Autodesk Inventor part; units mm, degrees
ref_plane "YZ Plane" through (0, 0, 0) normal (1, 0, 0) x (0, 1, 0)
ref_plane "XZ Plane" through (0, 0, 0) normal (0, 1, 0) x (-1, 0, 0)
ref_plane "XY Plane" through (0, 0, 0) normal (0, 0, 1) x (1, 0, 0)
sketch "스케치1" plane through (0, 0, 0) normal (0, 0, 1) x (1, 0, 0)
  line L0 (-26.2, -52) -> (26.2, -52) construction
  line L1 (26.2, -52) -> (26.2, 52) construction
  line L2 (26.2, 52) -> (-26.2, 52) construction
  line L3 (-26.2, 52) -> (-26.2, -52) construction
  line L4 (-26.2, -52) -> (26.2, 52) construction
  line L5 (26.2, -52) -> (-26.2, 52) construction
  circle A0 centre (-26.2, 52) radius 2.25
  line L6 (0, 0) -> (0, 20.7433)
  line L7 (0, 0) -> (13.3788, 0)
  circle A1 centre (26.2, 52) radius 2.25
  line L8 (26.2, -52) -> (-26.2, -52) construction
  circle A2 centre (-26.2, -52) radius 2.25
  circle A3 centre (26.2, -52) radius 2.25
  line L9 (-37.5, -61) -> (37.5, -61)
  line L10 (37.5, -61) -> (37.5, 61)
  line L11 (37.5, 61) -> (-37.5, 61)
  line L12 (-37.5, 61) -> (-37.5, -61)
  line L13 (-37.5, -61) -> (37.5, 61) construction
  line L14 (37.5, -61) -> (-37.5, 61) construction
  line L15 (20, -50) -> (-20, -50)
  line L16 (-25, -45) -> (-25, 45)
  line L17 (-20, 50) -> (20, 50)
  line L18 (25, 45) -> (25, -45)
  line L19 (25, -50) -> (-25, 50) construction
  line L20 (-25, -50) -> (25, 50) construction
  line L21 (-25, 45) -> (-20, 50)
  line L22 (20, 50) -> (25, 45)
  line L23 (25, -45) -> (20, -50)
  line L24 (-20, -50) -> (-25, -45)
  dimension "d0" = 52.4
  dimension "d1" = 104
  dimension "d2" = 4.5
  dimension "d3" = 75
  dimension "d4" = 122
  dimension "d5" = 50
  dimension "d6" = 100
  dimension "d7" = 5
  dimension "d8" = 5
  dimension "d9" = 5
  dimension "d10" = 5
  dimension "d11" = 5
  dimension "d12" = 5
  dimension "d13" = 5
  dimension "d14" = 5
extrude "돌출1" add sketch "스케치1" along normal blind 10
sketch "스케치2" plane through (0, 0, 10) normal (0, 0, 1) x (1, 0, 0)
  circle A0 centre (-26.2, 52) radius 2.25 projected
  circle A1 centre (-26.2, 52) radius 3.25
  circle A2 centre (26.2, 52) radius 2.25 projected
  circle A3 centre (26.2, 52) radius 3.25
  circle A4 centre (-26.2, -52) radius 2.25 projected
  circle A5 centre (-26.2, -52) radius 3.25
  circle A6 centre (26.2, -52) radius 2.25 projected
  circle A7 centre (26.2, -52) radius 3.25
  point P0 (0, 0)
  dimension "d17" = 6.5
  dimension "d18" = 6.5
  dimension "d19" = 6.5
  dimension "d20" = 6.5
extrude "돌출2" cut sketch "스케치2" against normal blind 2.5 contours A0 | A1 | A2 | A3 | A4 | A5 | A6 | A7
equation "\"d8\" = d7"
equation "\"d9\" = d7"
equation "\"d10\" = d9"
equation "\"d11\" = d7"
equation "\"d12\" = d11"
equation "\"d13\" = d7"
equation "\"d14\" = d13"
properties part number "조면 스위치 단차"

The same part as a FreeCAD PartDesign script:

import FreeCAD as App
import Part
import Sketcher
Q = App.Units.Quantity

doc = App.newDocument("Part")
body = doc.addObject("PartDesign::Body", "Body")

sketch1 = doc.addObject("Sketcher::SketchObject", "Sketch")
body.addObject(sketch1)
sketch1.AttachmentSupport = (doc.XY_Plane, [""])
sketch1.MapMode = "FlatFace"
sketch1.addGeometry(Part.LineSegment(App.Vector(-37.5, 61, 0), App.Vector(-37.5, -61, 0)), False)
sketch1.addGeometry(Part.LineSegment(App.Vector(-37.5, -61, 0), App.Vector(37.5, -61, 0)), False)
sketch1.addGeometry(Part.LineSegment(App.Vector(37.5, -61, 0), App.Vector(37.5, 61, 0)), False)
sketch1.addGeometry(Part.LineSegment(App.Vector(37.5, 61, 0), App.Vector(-37.5, 61, 0)), False)
sketch1.addGeometry(Part.Circle(App.Vector(-26.2, -52, 0), App.Vector(0, 0, 1), 2.2), False)
sketch1.addGeometry(Part.Circle(App.Vector(26.2, -52, 0), App.Vector(0, 0, 1), 2.2), False)
sketch1.addGeometry(Part.Circle(App.Vector(-26.2, 52, 0), App.Vector(0, 0, 1), 2.2), False)
sketch1.addGeometry(Part.LineSegment(App.Vector(25, -45, 0), App.Vector(20, -50, 0)), False)
sketch1.addGeometry(Part.LineSegment(App.Vector(20, -50, 0), App.Vector(-20, -50, 0)), False)
sketch1.addGeometry(Part.LineSegment(App.Vector(-20, -50, 0), App.Vector(-25, -45, 0)), False)
sketch1.addGeometry(Part.LineSegment(App.Vector(-25, -45, 0), App.Vector(-25, 45, 0)), False)
sketch1.addGeometry(Part.LineSegment(App.Vector(-25, 45, 0), App.Vector(-20, 50, 0)), False)
sketch1.addGeometry(Part.LineSegment(App.Vector(-20, 50, 0), App.Vector(20, 50, 0)), False)
sketch1.addGeometry(Part.LineSegment(App.Vector(20, 50, 0), App.Vector(25, 45, 0)), False)
sketch1.addGeometry(Part.LineSegment(App.Vector(25, 45, 0), App.Vector(25, -45, 0)), False)
sketch1.addGeometry(Part.Circle(App.Vector(26.2, 52, 0), App.Vector(0, 0, 1), 2.2), False)
sketch1.addConstraint(Sketcher.Constraint("Coincident", 0, 2, 1, 1))
sketch1.addConstraint(Sketcher.Constraint("Coincident", 1, 2, 2, 1))
sketch1.addConstraint(Sketcher.Constraint("Coincident", 2, 2, 3, 1))
sketch1.addConstraint(Sketcher.Constraint("Coincident", 3, 2, 0, 1))
sketch1.addConstraint(Sketcher.Constraint("Coincident", 7, 2, 8, 1))
sketch1.addConstraint(Sketcher.Constraint("Coincident", 8, 2, 9, 1))
sketch1.addConstraint(Sketcher.Constraint("Coincident", 9, 2, 10, 1))
sketch1.addConstraint(Sketcher.Constraint("Coincident", 10, 2, 11, 1))
sketch1.addConstraint(Sketcher.Constraint("Coincident", 11, 2, 12, 1))
sketch1.addConstraint(Sketcher.Constraint("Coincident", 12, 2, 13, 1))
sketch1.addConstraint(Sketcher.Constraint("Coincident", 13, 2, 14, 1))
sketch1.addConstraint(Sketcher.Constraint("Coincident", 14, 2, 7, 1))
sketch1.addConstraint(Sketcher.Constraint("Vertical", 0))
sketch1.addConstraint(Sketcher.Constraint("Horizontal", 1))
sketch1.addConstraint(Sketcher.Constraint("Vertical", 2))
sketch1.addConstraint(Sketcher.Constraint("Horizontal", 3))
sketch1.addConstraint(Sketcher.Constraint("Horizontal", 8))
sketch1.addConstraint(Sketcher.Constraint("Vertical", 10))
sketch1.addConstraint(Sketcher.Constraint("Horizontal", 12))
sketch1.addConstraint(Sketcher.Constraint("Vertical", 14))
sketch1.addConstraint(Sketcher.Constraint("Equal", 4, 5))
sketch1.addConstraint(Sketcher.Constraint("Equal", 5, 6))
sketch1.addConstraint(Sketcher.Constraint("Equal", 6, 15))
sketch1.addConstraint(Sketcher.Constraint("Symmetric", 5, 3, 6, 3, -1, 1))
sketch1.addConstraint(Sketcher.Constraint("Symmetric", 4, 3, 15, 3, -1, 1))
sketch1.addConstraint(Sketcher.Constraint("Symmetric", 0, 2, 2, 2, -1, 1))
sketch1.addConstraint(Sketcher.Constraint("Symmetric", 7, 2, 11, 2, -1, 1))
sketch1.addConstraint(Sketcher.Constraint("Symmetric", 9, 2, 13, 2, -1, 1))
sketch1.addConstraint(Sketcher.Constraint("Symmetric", 4, 3, 5, 3, -2))
sketch1.addConstraint(Sketcher.Constraint("Perpendicular", 7, 9))
sketch1.addConstraint(Sketcher.Constraint("Perpendicular", 9, 11))
sketch1.addConstraint(Sketcher.Constraint("Perpendicular", 11, 13))
sketch1.addConstraint(Sketcher.Constraint("Horizontal", 10, 2, 13, 2))
sketch1.addConstraint(Sketcher.Constraint("Vertical", 8, 2, 11, 2))
sketch1.addConstraint(Sketcher.Constraint("Diameter", 4, Q("4.5 mm")))
sketch1.addConstraint(Sketcher.Constraint("DistanceX", 1, 1, 1, 2, Q("75 mm")))
sketch1.addConstraint(Sketcher.Constraint("DistanceY", 0, 2, 0, 1, Q("122 mm")))
sketch1.addConstraint(Sketcher.Constraint("DistanceY", 7, 2, -1, 1, Q("50 mm")))
sketch1.addConstraint(Sketcher.Constraint("DistanceY", 4, 3, 6, 3, Q("104 mm")))
sketch1.addConstraint(Sketcher.Constraint("DistanceX", 9, 2, 8, 2, Q("5 mm")))
sketch1.addConstraint(Sketcher.Constraint("DistanceX", 10, 2, 13, 2, Q("50 mm")))
sketch1.addConstraint(Sketcher.Constraint("DistanceX", 4, 3, 5, 3, Q("52.4 mm")))
pad1 = doc.addObject("PartDesign::Pad", "Pad")
body.addObject(pad1)
pad1.Profile = sketch1
pad1.Length = 10

sketch2 = doc.addObject("Sketcher::SketchObject", "Sketch001")
body.addObject(sketch2)
sketch2.AttachmentSupport = (doc.XY_Plane, [""])
sketch2.MapMode = "FlatFace"
sketch2.AttachmentOffset = App.Placement(App.Vector(0, 0, 10), App.Rotation())
sketch2.addGeometry(Part.Circle(App.Vector(-26.2, 52, 0), App.Vector(0, 0, 1), 3.2), False)
sketch2.addGeometry(Part.Circle(App.Vector(26.2, 52, 0), App.Vector(0, 0, 1), 3.2), False)
sketch2.addGeometry(Part.Circle(App.Vector(-26.2, -52, 0), App.Vector(0, 0, 1), 3.2), False)
sketch2.addGeometry(Part.Circle(App.Vector(26.2, -52, 0), App.Vector(0, 0, 1), 3.2), False)
sketch2.addConstraint(Sketcher.Constraint("Equal", 0, 1))
sketch2.addConstraint(Sketcher.Constraint("Equal", 1, 2))
sketch2.addConstraint(Sketcher.Constraint("Equal", 2, 3))
sketch2.addConstraint(Sketcher.Constraint("Symmetric", 1, 3, 2, 3, -1, 1))
sketch2.addConstraint(Sketcher.Constraint("Symmetric", 0, 3, 3, 3, -1, 1))
sketch2.addConstraint(Sketcher.Constraint("Symmetric", 0, 3, 1, 3, -2))
sketch2.addConstraint(Sketcher.Constraint("Diameter", 0, Q("6.5 mm")))
sketch2.addConstraint(Sketcher.Constraint("DistanceY", -1, 1, 0, 3, Q("52 mm")))
sketch2.addConstraint(Sketcher.Constraint("DistanceX", 0, 3, -1, 1, Q("26.2 mm")))
pocket1 = doc.addObject("PartDesign::Pocket", "Pocket")
body.addObject(pocket1)
pocket1.Profile = sketch2
pocket1.Length = 2.5

doc.recompute()
